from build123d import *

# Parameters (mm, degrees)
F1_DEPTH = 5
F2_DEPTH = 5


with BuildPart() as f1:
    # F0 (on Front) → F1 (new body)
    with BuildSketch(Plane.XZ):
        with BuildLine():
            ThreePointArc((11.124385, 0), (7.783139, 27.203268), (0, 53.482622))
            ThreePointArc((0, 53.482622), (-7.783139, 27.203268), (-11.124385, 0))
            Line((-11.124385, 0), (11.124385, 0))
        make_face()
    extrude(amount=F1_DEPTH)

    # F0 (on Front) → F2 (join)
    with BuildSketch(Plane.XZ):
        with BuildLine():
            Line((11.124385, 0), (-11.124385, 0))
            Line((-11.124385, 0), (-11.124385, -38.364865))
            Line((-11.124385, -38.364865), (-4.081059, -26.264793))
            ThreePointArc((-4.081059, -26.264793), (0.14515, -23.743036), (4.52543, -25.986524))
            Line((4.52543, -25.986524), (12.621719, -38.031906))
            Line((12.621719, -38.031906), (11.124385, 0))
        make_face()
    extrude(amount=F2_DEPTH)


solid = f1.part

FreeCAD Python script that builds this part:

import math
import FreeCAD as App
import Part
import Sketcher
from FreeCAD import Vector

doc = App.newDocument("Part")
body = doc.addObject("PartDesign::Body", "Body")

# Sketch on XZ plane
sketch1 = body.newObject("Sketcher::SketchObject", "Sketch")
sketch1.AttachmentSupport = (doc.getObject("XZ_Plane"), [""])
sketch1.MapMode = "FlatFace"
sketch1.addGeometry(Part.ArcOfCircle(Part.Circle(Vector(-154, -7, 0), Vector(0, 0, 1), 166), math.radians(2.25), math.radians(21.25)), False)
sketch1.addGeometry(Part.ArcOfCircle(Part.Circle(Vector(154, -7, 0), Vector(0, 0, 1), 166), math.radians(158.75), math.radians(177.75)), False)
sketch1.addGeometry(Part.LineSegment(Vector(-11, 0, 0), Vector(11, 0, 0)), False)
sketch1.addConstraint(Sketcher.Constraint("Coincident", 0, 2, 1, 1))
sketch1.addConstraint(Sketcher.Constraint("Coincident", 1, 2, 2, 1))
sketch1.addConstraint(Sketcher.Constraint("Coincident", 2, 2, 0, 1))
sketch1.addConstraint(Sketcher.Constraint("Horizontal", 2))
sketch1.addConstraint(Sketcher.Constraint("Equal", 0, 1))
sketch1.addConstraint(Sketcher.Constraint("Symmetric", 1, 2, 2, 2, -1, 1))
sketch1.addConstraint(Sketcher.Constraint("PointOnObject", 0, 2, -2))
sketch1.addConstraint(Sketcher.Constraint("Radius", 0, 165.569293))
sketch1.addConstraint(Sketcher.Constraint("DistanceX", 2, 1, 2, 2, 22.24877))
sketch1.addConstraint(Sketcher.Constraint("DistanceX", 0, 3, -1, 1, 154.316738))
pad1 = body.newObject("PartDesign::Pad", "Pad")
pad1.Profile = sketch1
pad1.Length = 5

# Sketch on XZ plane
sketch2 = body.newObject("Sketcher::SketchObject", "Sketch001")
sketch2.AttachmentSupport = (doc.getObject("XZ_Plane"), [""])
sketch2.MapMode = "FlatFace"
sketch2.addGeometry(Part.LineSegment(Vector(11, 0, 0), Vector(-11, 0, 0)), False)
sketch2.addGeometry(Part.LineSegment(Vector(-11, 0, 0), Vector(-11, -38, 0)), False)
sketch2.addGeometry(Part.LineSegment(Vector(-11, -38, 0), Vector(-4, -26, 0)), False)
sketch2.addGeometry(Part.ArcOfCircle(Part.Circle(Vector(0, -29, 0), Vector(0, 0, 1), 5), math.radians(34), math.radians(150)), False)
sketch2.addGeometry(Part.LineSegment(Vector(5, -26, 0), Vector(13, -38, 0)), False)
sketch2.addGeometry(Part.LineSegment(Vector(13, -38, 0), Vector(11, 0, 0)), False)
sketch2.addConstraint(Sketcher.Constraint("Coincident", 0, 2, 1, 1))
sketch2.addConstraint(Sketcher.Constraint("Coincident", 1, 2, 2, 1))
sketch2.addConstraint(Sketcher.Constraint("Tangent", 2, 2, 3, 2))
sketch2.addConstraint(Sketcher.Constraint("Tangent", 3, 1, 4, 1))
sketch2.addConstraint(Sketcher.Constraint("Coincident", 4, 2, 5, 1))
sketch2.addConstraint(Sketcher.Constraint("Coincident", 5, 2, 0, 1))
sketch2.addConstraint(Sketcher.Constraint("Horizontal", 0))
sketch2.addConstraint(Sketcher.Constraint("Vertical", 1))
sketch2.addConstraint(Sketcher.Constraint("Symmetric", 0, 2, 5, 2, -1, 1))
sketch2.addConstraint(Sketcher.Constraint("Radius", 3, 5.08))
sketch2.addConstraint(Sketcher.Constraint("DistanceX", 0, 2, 0, 1, 22.24877))
sketch2.addConstraint(Sketcher.Constraint("Distance", 2, 14.000721))
sketch2.addConstraint(Sketcher.Constraint("Distance", 4, 14.513481))
sketch2.addConstraint(Sketcher.Constraint("Distance", 5, 38.06137))
sketch2.addConstraint(Sketcher.Constraint("DistanceY", 1, 2, 1, 1, 38.364865))
sketch2.addConstraint(Sketcher.Constraint("DistanceX", 2, 2, -1, 1, 4.081059))
pad2 = body.newObject("PartDesign::Pad", "Pad001")
pad2.Profile = sketch2
pad2.Length = 5

doc.recompute()
